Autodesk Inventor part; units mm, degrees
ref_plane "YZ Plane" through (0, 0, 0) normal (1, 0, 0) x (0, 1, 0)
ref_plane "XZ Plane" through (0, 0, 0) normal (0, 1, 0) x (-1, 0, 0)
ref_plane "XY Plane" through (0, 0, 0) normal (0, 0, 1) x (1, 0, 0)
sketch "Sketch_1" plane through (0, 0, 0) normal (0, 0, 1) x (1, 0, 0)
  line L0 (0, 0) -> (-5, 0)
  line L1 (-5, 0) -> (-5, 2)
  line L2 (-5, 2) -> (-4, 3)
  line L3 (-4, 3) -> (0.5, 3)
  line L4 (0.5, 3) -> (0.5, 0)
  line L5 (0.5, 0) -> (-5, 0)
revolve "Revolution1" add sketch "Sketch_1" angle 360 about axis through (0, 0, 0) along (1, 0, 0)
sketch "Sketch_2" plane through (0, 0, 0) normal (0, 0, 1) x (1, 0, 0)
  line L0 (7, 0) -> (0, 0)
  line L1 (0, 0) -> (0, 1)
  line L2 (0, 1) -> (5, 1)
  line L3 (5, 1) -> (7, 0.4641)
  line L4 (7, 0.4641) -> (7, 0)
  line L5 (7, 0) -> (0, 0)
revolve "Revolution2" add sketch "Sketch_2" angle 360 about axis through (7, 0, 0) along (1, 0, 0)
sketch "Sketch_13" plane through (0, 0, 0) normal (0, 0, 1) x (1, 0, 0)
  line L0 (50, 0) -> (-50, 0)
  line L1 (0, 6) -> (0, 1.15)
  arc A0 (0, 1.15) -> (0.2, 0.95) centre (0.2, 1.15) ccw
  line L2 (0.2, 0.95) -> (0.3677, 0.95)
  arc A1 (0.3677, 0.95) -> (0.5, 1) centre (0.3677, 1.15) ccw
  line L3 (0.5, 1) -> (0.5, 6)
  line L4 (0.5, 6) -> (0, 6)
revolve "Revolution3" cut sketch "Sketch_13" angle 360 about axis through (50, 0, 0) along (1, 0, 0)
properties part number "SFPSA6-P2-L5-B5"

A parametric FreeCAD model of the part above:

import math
import FreeCAD as App
import Part
import Sketcher
Q = App.Units.Quantity


def add_polygon(sketch, points):
    """Adds a closed chain of lines whose ends are joined by coincident constraints."""
    first, n = sketch.GeometryCount, len(points)
    for a, b in zip(points, points[1:] + points[:1]):
        sketch.addGeometry(Part.LineSegment(App.Vector(*a, 0), App.Vector(*b, 0)), False)
    for i in range(n):
        sketch.addConstraint(Sketcher.Constraint("Coincident", first + i, 2, first + (i + 1) % n, 1))

doc = App.newDocument("Part")
body = doc.addObject("PartDesign::Body", "Body")

# Sketch on XY plane
sketch1 = body.newObject("Sketcher::SketchObject", "Sketch")
sketch1.AttachmentSupport = (doc.getObject("XY_Plane"), [""])
sketch1.MapMode = "FlatFace"
add_polygon(sketch1, [(-5, 0), (0.5, 0), (0.5, 3), (-4, 3), (-5, 2)])  # lines 0-4
sketch1.addConstraint(Sketcher.Constraint("Horizontal", 0))
sketch1.addConstraint(Sketcher.Constraint("Vertical", 1))
sketch1.addConstraint(Sketcher.Constraint("Horizontal", 2))
sketch1.addConstraint(Sketcher.Constraint("Vertical", 4))
sketch1.addConstraint(Sketcher.Constraint("PointOnObject", 0, 2, -1))
sketch1.addConstraint(Sketcher.Constraint("DistanceY", 1, 1, 1, 2, 3.0))
sketch1.addConstraint(Sketcher.Constraint("DistanceY", 4, 2, 4, 1, 2.0))
sketch1.addConstraint(Sketcher.Constraint("Angle", 3, Q("-135 deg")))
sketch1.addConstraint(Sketcher.Constraint("DistanceX", 0, 1, 0, 2, 5.5))
sketch1.addConstraint(Sketcher.Constraint("DistanceX", 2, 2, -1, 1, 4.0))
revolution = body.newObject("PartDesign::Revolution", "Revolution")
revolution.Profile = sketch1
revolution.ReferenceAxis = (sketch1, ["H_Axis"])
revolution.Angle = 360

# Sketch on XY plane
sketch2 = body.newObject("Sketcher::SketchObject", "Sketch001")
sketch2.AttachmentSupport = (doc.getObject("XY_Plane"), [""])
sketch2.MapMode = "FlatFace"
add_polygon(sketch2, [(0, 0), (7, 0), (7, 0.4641), (5, 1), (0, 1)])  # lines 0-4
sketch2.addConstraint(Sketcher.Constraint("Horizontal", 0))
sketch2.addConstraint(Sketcher.Constraint("Vertical", 1))
sketch2.addConstraint(Sketcher.Constraint("Horizontal", 3))
sketch2.addConstraint(Sketcher.Constraint("Vertical", 4))
sketch2.addConstraint(Sketcher.Constraint("Coincident", 4, 2, -1, 1))
sketch2.addConstraint(Sketcher.Constraint("DistanceX", 0, 1, 0, 2, 7.0))
sketch2.addConstraint(Sketcher.Constraint("DistanceX", 3, 2, 3, 1, 5.0))
sketch2.addConstraint(Sketcher.Constraint("DistanceY", 4, 2, 4, 1, 1.0))
sketch2.addConstraint(Sketcher.Constraint("Angle", 2, Q("165 deg")))
revolution2 = body.newObject("PartDesign::Revolution", "Revolution001")
revolution2.Profile = sketch2
revolution2.ReferenceAxis = (sketch2, ["H_Axis"])
revolution2.Angle = 360

# Sketch on XY plane
sketch3 = body.newObject("Sketcher::SketchObject", "Sketch002")
sketch3.AttachmentSupport = (doc.getObject("XY_Plane"), [""])
sketch3.MapMode = "FlatFace"
sketch3.addGeometry(Part.LineSegment(App.Vector(0.5, 6, 0), App.Vector(0, 6, 0)), False)
sketch3.addGeometry(Part.LineSegment(App.Vector(0, 6, 0), App.Vector(0, 1.15, 0)), False)
sketch3.addGeometry(Part.ArcOfCircle(Part.Circle(App.Vector(0.2, 1.15, 0), App.Vector(0, 0, 1), 0.2), math.radians(180), math.radians(270)), False)
sketch3.addGeometry(Part.LineSegment(App.Vector(0.2, 0.95, 0), App.Vector(0.3677, 0.95, 0)), False)
sketch3.addGeometry(Part.ArcOfCircle(Part.Circle(App.Vector(0.3677, 1.15, 0), App.Vector(0, 0, 1), 0.2), math.radians(-90), math.radians(-48.587706)), False)
sketch3.addGeometry(Part.LineSegment(App.Vector(0.5, 1, 0), App.Vector(0.5, 6, 0)), False)
sketch3.addConstraint(Sketcher.Constraint("Coincident", 0, 2, 1, 1))
sketch3.addConstraint(Sketcher.Constraint("Tangent", 1, 2, 2, 1))
sketch3.addConstraint(Sketcher.Constraint("Tangent", 2, 2, 3, 1))
sketch3.addConstraint(Sketcher.Constraint("Tangent", 3, 2, 4, 1))
sketch3.addConstraint(Sketcher.Constraint("Coincident", 4, 2, 5, 1))
sketch3.addConstraint(Sketcher.Constraint("Coincident", 5, 2, 0, 1))
sketch3.addConstraint(Sketcher.Constraint("Horizontal", 0))
sketch3.addConstraint(Sketcher.Constraint("Vertical", 1))
sketch3.addConstraint(Sketcher.Constraint("Horizontal", 3))
sketch3.addConstraint(Sketcher.Constraint("Vertical", 5))
sketch3.addConstraint(Sketcher.Constraint("Equal", 2, 4))
sketch3.addConstraint(Sketcher.Constraint("PointOnObject", 0, 2, -2))
sketch3.addConstraint(Sketcher.Constraint("Radius", 2, 0.2))
sketch3.addConstraint(Sketcher.Constraint("DistanceY", 5, 1, 5, 2, 5.0))
sketch3.addConstraint(Sketcher.Constraint("DistanceX", 0, 2, 0, 1, 0.5))
sketch3.addConstraint(Sketcher.Constraint("DistanceY", -1, 1, 0, 2, 6.0))
sketch3.addConstraint(Sketcher.Constraint("DistanceY", 1, 2, 1, 1, 4.85))
groove = body.newObject("PartDesign::Groove", "Groove")
groove.Profile = sketch3
groove.ReferenceAxis = (sketch3, ["H_Axis"])
groove.Angle = 360

doc.recompute()
